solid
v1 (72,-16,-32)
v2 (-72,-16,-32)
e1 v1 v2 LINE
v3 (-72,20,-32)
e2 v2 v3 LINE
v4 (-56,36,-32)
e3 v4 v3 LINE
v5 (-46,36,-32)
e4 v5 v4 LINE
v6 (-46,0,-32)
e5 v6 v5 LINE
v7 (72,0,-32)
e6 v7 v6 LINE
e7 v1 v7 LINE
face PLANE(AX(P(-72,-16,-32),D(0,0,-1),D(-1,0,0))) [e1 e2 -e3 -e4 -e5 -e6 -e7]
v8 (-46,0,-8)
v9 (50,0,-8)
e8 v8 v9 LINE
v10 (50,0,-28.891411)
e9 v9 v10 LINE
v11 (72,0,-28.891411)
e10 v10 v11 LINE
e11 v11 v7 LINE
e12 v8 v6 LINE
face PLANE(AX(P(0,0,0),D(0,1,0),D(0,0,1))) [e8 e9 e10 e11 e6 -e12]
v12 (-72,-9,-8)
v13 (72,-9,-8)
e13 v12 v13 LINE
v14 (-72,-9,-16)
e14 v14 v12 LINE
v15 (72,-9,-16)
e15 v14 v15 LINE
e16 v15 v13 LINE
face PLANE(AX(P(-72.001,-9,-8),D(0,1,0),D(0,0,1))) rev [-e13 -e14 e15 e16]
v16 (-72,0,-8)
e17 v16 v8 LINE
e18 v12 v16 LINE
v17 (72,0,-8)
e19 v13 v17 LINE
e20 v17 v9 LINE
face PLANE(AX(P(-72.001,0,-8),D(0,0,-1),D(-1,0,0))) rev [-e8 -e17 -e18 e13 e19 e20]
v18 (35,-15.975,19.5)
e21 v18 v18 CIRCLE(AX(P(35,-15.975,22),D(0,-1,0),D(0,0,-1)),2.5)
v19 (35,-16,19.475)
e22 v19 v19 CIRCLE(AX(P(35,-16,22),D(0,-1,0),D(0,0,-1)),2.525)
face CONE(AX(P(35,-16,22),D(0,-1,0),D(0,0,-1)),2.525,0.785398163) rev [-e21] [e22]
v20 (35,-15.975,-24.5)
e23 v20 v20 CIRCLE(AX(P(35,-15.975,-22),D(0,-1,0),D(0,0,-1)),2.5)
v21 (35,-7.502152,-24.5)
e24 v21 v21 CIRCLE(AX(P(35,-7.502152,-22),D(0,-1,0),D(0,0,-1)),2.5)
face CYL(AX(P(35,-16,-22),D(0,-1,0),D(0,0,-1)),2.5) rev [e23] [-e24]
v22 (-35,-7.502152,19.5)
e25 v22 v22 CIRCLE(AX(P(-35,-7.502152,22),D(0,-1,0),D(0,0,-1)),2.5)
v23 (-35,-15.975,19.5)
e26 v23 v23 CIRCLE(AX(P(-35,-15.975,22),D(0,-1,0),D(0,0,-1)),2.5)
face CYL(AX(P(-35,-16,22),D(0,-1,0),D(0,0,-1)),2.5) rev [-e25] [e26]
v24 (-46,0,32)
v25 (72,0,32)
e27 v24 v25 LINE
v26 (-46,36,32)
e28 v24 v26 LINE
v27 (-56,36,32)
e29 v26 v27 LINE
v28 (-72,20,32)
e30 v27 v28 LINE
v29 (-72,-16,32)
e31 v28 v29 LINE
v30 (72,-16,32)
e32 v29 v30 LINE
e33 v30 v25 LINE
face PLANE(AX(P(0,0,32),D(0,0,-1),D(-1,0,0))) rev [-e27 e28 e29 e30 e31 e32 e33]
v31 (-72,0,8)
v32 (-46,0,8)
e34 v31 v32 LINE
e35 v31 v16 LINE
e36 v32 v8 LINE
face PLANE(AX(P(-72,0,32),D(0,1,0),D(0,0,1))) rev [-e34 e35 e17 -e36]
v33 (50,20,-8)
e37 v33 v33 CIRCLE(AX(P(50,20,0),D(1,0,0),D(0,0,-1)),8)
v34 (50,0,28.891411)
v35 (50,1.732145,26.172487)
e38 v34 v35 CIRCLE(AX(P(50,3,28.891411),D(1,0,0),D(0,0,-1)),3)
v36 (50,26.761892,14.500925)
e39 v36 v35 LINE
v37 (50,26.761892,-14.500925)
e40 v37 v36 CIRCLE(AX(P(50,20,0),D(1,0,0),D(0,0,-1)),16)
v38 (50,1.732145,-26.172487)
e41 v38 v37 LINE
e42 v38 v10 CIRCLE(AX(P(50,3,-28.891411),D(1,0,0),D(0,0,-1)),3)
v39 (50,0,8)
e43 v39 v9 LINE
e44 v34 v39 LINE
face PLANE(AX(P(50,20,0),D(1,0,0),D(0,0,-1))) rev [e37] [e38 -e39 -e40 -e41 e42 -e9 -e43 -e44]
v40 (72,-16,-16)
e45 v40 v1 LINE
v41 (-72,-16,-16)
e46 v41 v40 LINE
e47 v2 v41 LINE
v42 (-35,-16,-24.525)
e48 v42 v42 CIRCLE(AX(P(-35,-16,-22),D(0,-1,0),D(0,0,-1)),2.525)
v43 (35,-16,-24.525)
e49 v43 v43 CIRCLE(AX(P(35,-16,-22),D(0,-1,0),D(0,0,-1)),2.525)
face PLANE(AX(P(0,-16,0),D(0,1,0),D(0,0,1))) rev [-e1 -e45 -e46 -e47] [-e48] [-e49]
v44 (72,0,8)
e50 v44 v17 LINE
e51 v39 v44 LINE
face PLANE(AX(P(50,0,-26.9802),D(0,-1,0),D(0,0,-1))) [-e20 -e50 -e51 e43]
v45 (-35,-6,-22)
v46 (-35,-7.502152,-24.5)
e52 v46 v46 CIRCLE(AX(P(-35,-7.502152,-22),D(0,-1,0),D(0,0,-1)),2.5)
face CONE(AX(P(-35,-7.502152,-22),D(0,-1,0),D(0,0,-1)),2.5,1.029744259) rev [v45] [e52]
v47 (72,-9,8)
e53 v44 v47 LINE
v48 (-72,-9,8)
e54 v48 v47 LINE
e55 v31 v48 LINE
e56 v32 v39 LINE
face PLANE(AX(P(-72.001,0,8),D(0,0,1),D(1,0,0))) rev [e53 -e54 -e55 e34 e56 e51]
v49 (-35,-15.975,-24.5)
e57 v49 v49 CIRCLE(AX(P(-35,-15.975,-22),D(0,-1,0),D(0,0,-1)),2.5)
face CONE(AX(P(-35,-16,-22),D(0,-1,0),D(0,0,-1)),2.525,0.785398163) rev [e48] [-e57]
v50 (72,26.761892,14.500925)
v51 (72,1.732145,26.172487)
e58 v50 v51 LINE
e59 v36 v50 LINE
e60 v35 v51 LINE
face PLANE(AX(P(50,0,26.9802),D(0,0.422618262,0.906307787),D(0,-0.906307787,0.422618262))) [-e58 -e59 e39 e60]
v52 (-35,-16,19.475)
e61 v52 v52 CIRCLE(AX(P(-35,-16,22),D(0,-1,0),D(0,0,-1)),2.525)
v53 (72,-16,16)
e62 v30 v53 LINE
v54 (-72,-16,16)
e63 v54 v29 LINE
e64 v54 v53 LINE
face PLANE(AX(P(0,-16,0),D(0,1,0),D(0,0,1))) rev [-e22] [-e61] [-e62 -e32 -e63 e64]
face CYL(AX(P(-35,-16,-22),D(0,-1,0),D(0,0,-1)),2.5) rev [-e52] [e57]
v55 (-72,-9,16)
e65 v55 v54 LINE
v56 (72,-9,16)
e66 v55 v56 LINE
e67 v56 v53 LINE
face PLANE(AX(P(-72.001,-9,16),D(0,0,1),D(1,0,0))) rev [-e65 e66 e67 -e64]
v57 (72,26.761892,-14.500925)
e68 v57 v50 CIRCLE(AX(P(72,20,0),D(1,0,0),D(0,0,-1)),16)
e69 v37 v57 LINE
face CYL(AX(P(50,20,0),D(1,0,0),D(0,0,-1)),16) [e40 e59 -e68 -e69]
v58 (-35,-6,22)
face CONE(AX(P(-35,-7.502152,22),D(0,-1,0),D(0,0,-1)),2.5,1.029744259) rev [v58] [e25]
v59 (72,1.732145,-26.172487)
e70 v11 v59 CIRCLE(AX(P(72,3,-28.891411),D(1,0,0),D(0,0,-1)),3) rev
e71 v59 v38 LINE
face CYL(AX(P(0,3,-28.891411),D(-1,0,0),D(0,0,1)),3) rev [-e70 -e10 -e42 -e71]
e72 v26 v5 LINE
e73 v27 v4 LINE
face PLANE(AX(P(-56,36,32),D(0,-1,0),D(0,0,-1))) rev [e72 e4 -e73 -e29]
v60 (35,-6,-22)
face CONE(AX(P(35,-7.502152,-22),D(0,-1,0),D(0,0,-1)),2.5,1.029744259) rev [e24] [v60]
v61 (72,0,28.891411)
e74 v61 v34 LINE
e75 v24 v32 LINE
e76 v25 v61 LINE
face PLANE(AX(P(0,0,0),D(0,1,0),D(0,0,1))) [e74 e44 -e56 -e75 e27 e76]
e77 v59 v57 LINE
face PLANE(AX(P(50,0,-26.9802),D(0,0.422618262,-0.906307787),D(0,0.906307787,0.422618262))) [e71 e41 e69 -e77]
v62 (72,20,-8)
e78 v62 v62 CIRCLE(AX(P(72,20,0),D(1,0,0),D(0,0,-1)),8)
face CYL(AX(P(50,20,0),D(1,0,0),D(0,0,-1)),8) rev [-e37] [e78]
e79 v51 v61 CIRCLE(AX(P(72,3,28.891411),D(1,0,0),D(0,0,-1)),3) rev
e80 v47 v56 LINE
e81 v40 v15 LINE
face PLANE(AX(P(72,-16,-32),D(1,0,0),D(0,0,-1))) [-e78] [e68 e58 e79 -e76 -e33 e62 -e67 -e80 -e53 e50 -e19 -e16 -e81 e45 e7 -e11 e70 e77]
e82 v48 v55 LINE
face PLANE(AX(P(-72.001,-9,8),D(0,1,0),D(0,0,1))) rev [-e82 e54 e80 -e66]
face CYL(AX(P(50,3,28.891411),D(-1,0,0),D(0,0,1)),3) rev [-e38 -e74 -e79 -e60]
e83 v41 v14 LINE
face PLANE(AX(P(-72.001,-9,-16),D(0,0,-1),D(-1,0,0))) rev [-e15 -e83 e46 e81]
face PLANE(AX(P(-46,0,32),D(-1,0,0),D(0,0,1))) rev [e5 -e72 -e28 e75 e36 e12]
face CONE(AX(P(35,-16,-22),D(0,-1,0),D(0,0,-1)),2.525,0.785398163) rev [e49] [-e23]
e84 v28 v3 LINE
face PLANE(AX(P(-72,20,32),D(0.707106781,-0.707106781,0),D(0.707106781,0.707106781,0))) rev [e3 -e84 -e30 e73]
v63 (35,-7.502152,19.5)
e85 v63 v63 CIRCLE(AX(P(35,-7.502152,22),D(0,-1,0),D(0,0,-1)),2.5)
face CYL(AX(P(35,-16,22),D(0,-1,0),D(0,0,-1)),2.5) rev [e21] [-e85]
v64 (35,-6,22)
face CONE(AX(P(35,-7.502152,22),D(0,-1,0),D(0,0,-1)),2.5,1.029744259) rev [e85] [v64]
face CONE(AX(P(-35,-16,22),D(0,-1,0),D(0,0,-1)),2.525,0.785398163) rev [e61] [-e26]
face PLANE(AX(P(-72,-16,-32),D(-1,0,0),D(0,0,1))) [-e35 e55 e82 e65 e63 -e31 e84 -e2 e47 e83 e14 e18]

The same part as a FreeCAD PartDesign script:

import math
import FreeCAD as App
import Part
import Sketcher

V = App.Vector
Q = App.Units.Quantity


def edges_at(feature, points):
    """Names of the edges that pass closest to the given points."""
    edges = feature.Shape.Edges
    near = lambda p: min(range(len(edges)), key=lambda i: edges[i].distToShape(Part.Vertex(*p))[0])
    return sorted({f"Edge{near(p) + 1}" for p in points})


def add_polygon(sketch, points):
    """Adds a closed chain of lines whose ends are joined by coincident constraints."""
    first, n = sketch.GeometryCount, len(points)
    for a, b in zip(points, points[1:] + points[:1]):
        sketch.addGeometry(Part.LineSegment(App.Vector(*a, 0), App.Vector(*b, 0)), False)
    for i in range(n):
        sketch.addConstraint(Sketcher.Constraint("Coincident", first + i, 2, first + (i + 1) % n, 1))

doc = App.newDocument("Part")
body = doc.addObject("PartDesign::Body", "Body")
body.AllowCompound = True

# Sketch on XZ plane
sketch1 = body.newObject("Sketcher::SketchObject", "Sketch")
sketch1.AttachmentSupport = (doc.getObject("XZ_Plane"), [""])
sketch1.MapMode = "FlatFace"
add_polygon(sketch1, [(-72, -32), (-72, 32), (72, 32), (72, -32)])  # lines 0-3
sketch1.addConstraint([
    Sketcher.Constraint("Vertical", 0),
    Sketcher.Constraint("Horizontal", 1),
    Sketcher.Constraint("Vertical", 2),
    Sketcher.Constraint("Horizontal", 3),
    Sketcher.Constraint("Symmetric", 0, 2, 2, 2, -1, 1),
    Sketcher.Constraint("DistanceX", 1, 1, 1, 2, 144.0),
    Sketcher.Constraint("DistanceY", 0, 1, 0, 2, 64.0),
])
pad1 = body.newObject("PartDesign::Pad", "Pad")
pad1.Profile = sketch1
pad1.Length = 16

# Sketch on YZ plane
sketch2 = body.newObject("Sketcher::SketchObject", "Sketch001")
sketch2.AttachmentSupport = (doc.getObject("YZ_Plane"), [""])
sketch2.MapMode = "FlatFace"
sketch2.AttachmentOffset = App.Placement(V(0, 0, 72), App.Rotation())
add_polygon(sketch2, [(0, -8), (0, 8), (-9, 8), (-9, 16), (-16, 16), (-16, -16), (-9, -16), (-9, -8)])  # lines 0-7
sketch2.addConstraint([
    Sketcher.Constraint("Vertical", 0),
    Sketcher.Constraint("Horizontal", 1),
    Sketcher.Constraint("Vertical", 2),
    Sketcher.Constraint("Horizontal", 3),
    Sketcher.Constraint("Vertical", 4),
    Sketcher.Constraint("Horizontal", 5),
    Sketcher.Constraint("Vertical", 6),
    Sketcher.Constraint("Horizontal", 7),
    Sketcher.Constraint("Symmetric", 0, 2, 7, 2, -1, 1),
    Sketcher.Constraint("Symmetric", 2, 2, 5, 2, -1),
    Sketcher.Constraint("DistanceX", 1, 2, 1, 1, 9.0),
    Sketcher.Constraint("DistanceX", 3, 2, 3, 1, 7.0),
    Sketcher.Constraint("DistanceY", 0, 1, 0, 2, 16.0),
    Sketcher.Constraint("DistanceY", 2, 1, 2, 2, 8.0),
])
pocket1 = body.newObject("PartDesign::Pocket", "Pocket")
pocket1.Profile = sketch2
pocket1.Type = "UpToFirst"

# Sketch on XY plane
sketch3 = body.newObject("Sketcher::SketchObject", "Sketch002")
sketch3.AttachmentSupport = (doc.getObject("XY_Plane"), [""])
sketch3.MapMode = "FlatFace"
add_polygon(sketch3, [(-56, 36), (-72, 20), (-72, 0), (-46, 0), (-46, 36)])  # lines 0-4
sketch3.addConstraint([
    Sketcher.Constraint("Vertical", 1),
    Sketcher.Constraint("Horizontal", 2),
    Sketcher.Constraint("Vertical", 3),
    Sketcher.Constraint("Horizontal", 4),
    Sketcher.Constraint("PointOnObject", 1, 2, -1),
    Sketcher.Constraint("DistanceX", 2, 1, 2, 2, 26.0),
    Sketcher.Constraint("DistanceX", 4, 2, 4, 1, 10.0),
    Sketcher.Constraint("DistanceY", 1, 2, 1, 1, 20.0),
    Sketcher.Constraint("DistanceY", 3, 1, 3, 2, 36.0),
    Sketcher.Constraint("DistanceX", 0, 2, -1, 1, 72.0),
])
pad2 = body.newObject("PartDesign::Pad", "Pad001")
pad2.Profile = sketch3
pad2.Length = 64
pad2.Midplane = True

# Sketch on YZ plane
sketch4 = body.newObject("Sketcher::SketchObject", "Sketch003")
sketch4.AttachmentSupport = (doc.getObject("YZ_Plane"), [""])
sketch4.MapMode = "FlatFace"
sketch4.AttachmentOffset = App.Placement(V(0, 0, 72), App.Rotation())
sketch4.addGeometry([
    Part.LineSegment(V(0, -27, 0), V(27, -15, 0)),  # 0
    Part.ArcOfCircle(Part.Circle(V(20, 0, 0), V(0, 0, 1), 16), math.radians(-65), math.radians(65)),  # 1
    Part.LineSegment(V(27, 15, 0), V(0, 27, 0)),  # 2
    Part.LineSegment(V(0, 27, 0), V(0, -27, 0)),  # 3
    Part.Circle(V(20, 0, 0), V(0, 0, 1), 8),  # 4
], False)
sketch4.addConstraint([
    Sketcher.Constraint("Tangent", 0, 2, 1, 1),
    Sketcher.Constraint("Tangent", 1, 2, 2, 1),
    Sketcher.Constraint("Coincident", 2, 2, 3, 1),
    Sketcher.Constraint("Coincident", 3, 2, 0, 1),
    Sketcher.Constraint("Vertical", 3),
    Sketcher.Constraint("Coincident", 4, 3, 1, 3),
    Sketcher.Constraint("Symmetric", 2, 2, 3, 2, -1, 1),
    Sketcher.Constraint("PointOnObject", 1, 3, -1),
    Sketcher.Constraint("Diameter", 4, 16.0),
    Sketcher.Constraint("Radius", 1, 16.0),
    Sketcher.Constraint("Angle", 0, Q("25 deg")),
    Sketcher.Constraint("DistanceX", -1, 1, 1, 3, 20.0),
])
pad3 = body.newObject("PartDesign::Pad", "Pad002")
pad3.Profile = sketch4
pad3.Length = 22
pad3.Reversed = True
doc.recompute()

fillet = body.newObject("PartDesign::Fillet", "Fillet")
fillet.Base = (pad3, edges_at(pad3, [(61, 0, -26.98), (61, 0, 26.98)]))
fillet.Radius = 3

# Sketch on XZ plane
sketch5 = body.newObject("Sketcher::SketchObject", "Sketch004")
sketch5.AttachmentSupport = (doc.getObject("XZ_Plane"), [""])
sketch5.MapMode = "FlatFace"
sketch5.AttachmentOffset = App.Placement(V(0, 0, 16), App.Rotation())
sketch5.addGeometry([
    Part.Circle(V(-35, -22, 0), V(0, 0, 1), 2.5),  # 0
    Part.Circle(V(35, -22, 0), V(0, 0, 1), 2.5),  # 1
    Part.Circle(V(-35, 22, 0), V(0, 0, 1), 2.5),  # 2
    Part.Circle(V(35, 22, 0), V(0, 0, 1), 2.5),  # 3
    Part.Circle(V(0, 0, 0), V(0, 0, 1), 2.5),  # 4
], False)
sketch5.addConstraint([
    Sketcher.Constraint("Coincident", 4, 3, -1, 1),
    Sketcher.Constraint("Equal", 0, 1),
    Sketcher.Constraint("Equal", 1, 2),
    Sketcher.Constraint("Equal", 2, 3),
    Sketcher.Constraint("Equal", 3, 4),
    Sketcher.Constraint("Symmetric", 1, 3, 2, 3, -1, 1),
    Sketcher.Constraint("Symmetric", 0, 3, 3, 3, -1, 1),
    Sketcher.Constraint("Symmetric", 0, 3, 1, 3, -2),
    Sketcher.Constraint("Diameter", 0, 5.0),
    Sketcher.Constraint("DistanceX", 0, 3, -1, 1, 35.0),
    Sketcher.Constraint("DistanceY", 0, 3, -1, 1, 22.0),
])
doc.recompute()
hole = body.newObject("PartDesign::Hole", "Hole")
hole.Profile = sketch5
hole.ThreadType = "None"
hole.Diameter = 5
hole.DepthType = "Dimension"
hole.Depth = 8.497848
hole.DrillPoint = "Angled"
hole.DrillPointAngle = 118
hole.HoleCutType = "Countersink"
hole.HoleCutDiameter = 5.05
hole.HoleCutCountersinkAngle = 90

doc.recompute()
